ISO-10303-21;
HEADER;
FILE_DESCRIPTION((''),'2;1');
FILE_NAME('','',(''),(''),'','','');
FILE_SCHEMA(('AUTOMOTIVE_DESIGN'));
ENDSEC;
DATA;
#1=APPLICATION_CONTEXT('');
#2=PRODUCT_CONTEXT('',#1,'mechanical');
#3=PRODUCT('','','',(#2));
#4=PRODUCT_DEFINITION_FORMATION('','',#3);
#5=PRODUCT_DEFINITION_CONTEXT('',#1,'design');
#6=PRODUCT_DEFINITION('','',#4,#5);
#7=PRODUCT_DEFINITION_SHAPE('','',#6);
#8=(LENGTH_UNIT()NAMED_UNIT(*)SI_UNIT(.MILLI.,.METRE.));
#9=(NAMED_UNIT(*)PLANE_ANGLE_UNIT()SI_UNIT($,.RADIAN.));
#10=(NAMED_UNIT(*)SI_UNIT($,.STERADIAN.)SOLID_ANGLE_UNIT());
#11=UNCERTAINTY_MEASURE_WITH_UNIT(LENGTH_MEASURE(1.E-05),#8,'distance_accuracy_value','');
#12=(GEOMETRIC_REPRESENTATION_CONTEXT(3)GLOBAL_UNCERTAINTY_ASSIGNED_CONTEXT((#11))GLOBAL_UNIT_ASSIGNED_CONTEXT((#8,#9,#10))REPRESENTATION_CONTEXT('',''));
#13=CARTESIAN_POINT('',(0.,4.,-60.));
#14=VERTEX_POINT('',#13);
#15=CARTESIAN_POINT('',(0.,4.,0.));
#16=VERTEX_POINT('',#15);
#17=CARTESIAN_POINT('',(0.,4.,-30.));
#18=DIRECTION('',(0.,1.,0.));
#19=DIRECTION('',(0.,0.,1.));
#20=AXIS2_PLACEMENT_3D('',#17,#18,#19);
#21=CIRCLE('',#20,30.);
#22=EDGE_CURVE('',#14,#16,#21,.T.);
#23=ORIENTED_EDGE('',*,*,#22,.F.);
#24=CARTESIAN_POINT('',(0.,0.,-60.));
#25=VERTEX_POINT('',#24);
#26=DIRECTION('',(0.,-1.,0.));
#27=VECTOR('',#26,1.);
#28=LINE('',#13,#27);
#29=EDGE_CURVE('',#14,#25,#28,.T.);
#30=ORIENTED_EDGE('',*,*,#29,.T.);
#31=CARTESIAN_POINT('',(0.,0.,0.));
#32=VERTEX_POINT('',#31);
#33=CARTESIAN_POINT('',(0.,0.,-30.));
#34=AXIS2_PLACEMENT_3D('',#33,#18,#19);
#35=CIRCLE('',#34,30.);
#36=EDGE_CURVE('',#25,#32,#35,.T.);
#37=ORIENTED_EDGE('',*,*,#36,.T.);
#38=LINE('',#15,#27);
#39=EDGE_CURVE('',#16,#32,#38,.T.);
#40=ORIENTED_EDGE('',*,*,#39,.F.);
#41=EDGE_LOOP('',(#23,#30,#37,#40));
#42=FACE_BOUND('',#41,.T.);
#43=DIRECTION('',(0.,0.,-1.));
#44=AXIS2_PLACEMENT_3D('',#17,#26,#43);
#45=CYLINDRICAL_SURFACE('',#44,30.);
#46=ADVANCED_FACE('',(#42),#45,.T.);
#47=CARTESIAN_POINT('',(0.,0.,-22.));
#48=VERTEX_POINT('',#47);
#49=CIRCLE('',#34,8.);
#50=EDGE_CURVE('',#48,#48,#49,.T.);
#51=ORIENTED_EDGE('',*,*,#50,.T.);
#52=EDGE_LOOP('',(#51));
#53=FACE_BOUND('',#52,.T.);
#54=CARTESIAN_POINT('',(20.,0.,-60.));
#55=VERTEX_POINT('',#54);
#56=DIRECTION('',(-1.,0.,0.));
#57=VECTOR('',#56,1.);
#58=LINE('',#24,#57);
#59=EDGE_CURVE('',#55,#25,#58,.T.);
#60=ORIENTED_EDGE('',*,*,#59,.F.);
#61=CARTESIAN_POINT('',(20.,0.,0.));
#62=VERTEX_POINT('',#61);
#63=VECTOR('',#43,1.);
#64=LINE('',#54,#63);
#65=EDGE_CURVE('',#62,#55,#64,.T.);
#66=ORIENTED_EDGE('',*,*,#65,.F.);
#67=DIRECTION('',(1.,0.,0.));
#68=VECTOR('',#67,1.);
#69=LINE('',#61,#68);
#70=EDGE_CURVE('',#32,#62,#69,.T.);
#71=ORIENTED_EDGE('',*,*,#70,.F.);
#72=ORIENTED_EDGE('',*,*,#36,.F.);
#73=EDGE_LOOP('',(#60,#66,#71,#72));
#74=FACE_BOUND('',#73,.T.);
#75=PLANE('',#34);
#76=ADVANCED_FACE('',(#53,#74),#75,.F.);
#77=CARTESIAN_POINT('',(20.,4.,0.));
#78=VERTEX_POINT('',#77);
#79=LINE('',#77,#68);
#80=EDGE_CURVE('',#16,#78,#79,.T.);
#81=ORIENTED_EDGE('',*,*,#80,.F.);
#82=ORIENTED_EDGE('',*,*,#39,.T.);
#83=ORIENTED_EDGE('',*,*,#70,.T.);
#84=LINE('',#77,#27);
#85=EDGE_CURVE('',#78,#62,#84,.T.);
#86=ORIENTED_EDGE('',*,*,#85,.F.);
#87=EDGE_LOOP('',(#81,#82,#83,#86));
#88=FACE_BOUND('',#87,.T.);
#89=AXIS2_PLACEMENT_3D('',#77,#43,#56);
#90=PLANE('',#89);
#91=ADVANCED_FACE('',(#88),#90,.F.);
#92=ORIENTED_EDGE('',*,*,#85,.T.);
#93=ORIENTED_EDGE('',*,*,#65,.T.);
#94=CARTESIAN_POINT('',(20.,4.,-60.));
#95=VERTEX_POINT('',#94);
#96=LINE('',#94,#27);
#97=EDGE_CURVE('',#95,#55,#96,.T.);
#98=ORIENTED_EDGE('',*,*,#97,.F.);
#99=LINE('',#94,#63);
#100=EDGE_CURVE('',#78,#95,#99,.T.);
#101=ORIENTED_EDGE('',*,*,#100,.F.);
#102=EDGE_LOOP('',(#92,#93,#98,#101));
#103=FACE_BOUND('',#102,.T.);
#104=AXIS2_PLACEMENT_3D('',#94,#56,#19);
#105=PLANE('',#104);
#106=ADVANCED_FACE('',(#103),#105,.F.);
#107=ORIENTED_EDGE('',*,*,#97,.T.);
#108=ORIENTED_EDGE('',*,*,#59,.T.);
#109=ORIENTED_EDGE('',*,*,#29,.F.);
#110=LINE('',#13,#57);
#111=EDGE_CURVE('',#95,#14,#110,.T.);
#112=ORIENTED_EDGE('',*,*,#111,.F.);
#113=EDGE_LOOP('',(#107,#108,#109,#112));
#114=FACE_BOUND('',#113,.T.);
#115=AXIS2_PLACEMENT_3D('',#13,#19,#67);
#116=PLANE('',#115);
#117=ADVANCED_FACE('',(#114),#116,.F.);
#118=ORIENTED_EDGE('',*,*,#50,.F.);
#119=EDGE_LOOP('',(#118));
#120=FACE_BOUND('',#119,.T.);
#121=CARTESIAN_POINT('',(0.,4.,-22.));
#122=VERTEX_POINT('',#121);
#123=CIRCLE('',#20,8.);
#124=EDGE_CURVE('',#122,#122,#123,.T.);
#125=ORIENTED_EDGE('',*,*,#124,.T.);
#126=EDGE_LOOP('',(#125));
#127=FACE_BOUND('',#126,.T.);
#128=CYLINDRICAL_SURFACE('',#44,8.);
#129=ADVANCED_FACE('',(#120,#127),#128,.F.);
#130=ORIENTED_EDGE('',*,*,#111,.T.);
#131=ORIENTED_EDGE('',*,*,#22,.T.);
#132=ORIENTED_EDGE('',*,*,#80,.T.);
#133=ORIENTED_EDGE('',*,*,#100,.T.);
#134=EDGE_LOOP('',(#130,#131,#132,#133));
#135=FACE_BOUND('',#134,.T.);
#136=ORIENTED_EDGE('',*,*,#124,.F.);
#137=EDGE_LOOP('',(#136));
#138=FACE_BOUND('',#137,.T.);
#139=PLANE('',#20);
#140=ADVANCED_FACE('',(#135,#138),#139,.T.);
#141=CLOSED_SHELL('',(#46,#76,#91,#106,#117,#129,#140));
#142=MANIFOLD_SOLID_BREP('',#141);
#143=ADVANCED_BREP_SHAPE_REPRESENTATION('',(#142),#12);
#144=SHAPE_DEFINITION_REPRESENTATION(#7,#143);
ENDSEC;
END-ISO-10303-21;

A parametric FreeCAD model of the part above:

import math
import FreeCAD as App
import Part
import Sketcher
from FreeCAD import Vector
Q = App.Units.Quantity

doc = App.newDocument("Part")
body = doc.addObject("PartDesign::Body", "Body")

# Sketch on XZ plane
sketch1 = doc.addObject("Sketcher::SketchObject", "Sketch")
body.addObject(sketch1)
sketch1.AttachmentSupport = (doc.XZ_Plane, [""])
sketch1.MapMode = "FlatFace"
sketch1.addGeometry([
    Part.LineSegment(Vector(20, -60, 0), Vector(0, -60, 0)),  # 0
    Part.ArcOfCircle(Part.Circle(Vector(0, -30, 0), Vector(0, 0, 1), 30), math.radians(90), math.radians(270)),  # 1
    Part.LineSegment(Vector(0, 0, 0), Vector(20, 0, 0)),  # 2
    Part.LineSegment(Vector(20, 0, 0), Vector(20, -60, 0)),  # 3
    Part.Circle(Vector(0, -30, 0), Vector(0, 0, 1), 8),  # 4
], False)
sketch1.addConstraint([
    Sketcher.Constraint("Tangent", 0, 2, 1, 2),
    Sketcher.Constraint("Tangent", 1, 1, 2, 1),
    Sketcher.Constraint("Coincident", 2, 2, 3, 1),
    Sketcher.Constraint("Coincident", 3, 2, 0, 1),
    Sketcher.Constraint("Horizontal", 0),
    Sketcher.Constraint("Horizontal", 2),
    Sketcher.Constraint("Vertical", 3),
    Sketcher.Constraint("Coincident", 1, 1, -1, 1),
    Sketcher.Constraint("Coincident", 4, 3, 1, 3),
    Sketcher.Constraint("Diameter", 4, Q("16 mm")),
    Sketcher.Constraint("Radius", 1, Q("30 mm")),
    Sketcher.Constraint("DistanceX", 0, 2, 0, 1, Q("20 mm")),
])
pad1 = doc.addObject("PartDesign::Pad", "Pad")
body.addObject(pad1)
pad1.Profile = sketch1
pad1.Length = 4
pad1.Reversed = True

doc.recompute()
